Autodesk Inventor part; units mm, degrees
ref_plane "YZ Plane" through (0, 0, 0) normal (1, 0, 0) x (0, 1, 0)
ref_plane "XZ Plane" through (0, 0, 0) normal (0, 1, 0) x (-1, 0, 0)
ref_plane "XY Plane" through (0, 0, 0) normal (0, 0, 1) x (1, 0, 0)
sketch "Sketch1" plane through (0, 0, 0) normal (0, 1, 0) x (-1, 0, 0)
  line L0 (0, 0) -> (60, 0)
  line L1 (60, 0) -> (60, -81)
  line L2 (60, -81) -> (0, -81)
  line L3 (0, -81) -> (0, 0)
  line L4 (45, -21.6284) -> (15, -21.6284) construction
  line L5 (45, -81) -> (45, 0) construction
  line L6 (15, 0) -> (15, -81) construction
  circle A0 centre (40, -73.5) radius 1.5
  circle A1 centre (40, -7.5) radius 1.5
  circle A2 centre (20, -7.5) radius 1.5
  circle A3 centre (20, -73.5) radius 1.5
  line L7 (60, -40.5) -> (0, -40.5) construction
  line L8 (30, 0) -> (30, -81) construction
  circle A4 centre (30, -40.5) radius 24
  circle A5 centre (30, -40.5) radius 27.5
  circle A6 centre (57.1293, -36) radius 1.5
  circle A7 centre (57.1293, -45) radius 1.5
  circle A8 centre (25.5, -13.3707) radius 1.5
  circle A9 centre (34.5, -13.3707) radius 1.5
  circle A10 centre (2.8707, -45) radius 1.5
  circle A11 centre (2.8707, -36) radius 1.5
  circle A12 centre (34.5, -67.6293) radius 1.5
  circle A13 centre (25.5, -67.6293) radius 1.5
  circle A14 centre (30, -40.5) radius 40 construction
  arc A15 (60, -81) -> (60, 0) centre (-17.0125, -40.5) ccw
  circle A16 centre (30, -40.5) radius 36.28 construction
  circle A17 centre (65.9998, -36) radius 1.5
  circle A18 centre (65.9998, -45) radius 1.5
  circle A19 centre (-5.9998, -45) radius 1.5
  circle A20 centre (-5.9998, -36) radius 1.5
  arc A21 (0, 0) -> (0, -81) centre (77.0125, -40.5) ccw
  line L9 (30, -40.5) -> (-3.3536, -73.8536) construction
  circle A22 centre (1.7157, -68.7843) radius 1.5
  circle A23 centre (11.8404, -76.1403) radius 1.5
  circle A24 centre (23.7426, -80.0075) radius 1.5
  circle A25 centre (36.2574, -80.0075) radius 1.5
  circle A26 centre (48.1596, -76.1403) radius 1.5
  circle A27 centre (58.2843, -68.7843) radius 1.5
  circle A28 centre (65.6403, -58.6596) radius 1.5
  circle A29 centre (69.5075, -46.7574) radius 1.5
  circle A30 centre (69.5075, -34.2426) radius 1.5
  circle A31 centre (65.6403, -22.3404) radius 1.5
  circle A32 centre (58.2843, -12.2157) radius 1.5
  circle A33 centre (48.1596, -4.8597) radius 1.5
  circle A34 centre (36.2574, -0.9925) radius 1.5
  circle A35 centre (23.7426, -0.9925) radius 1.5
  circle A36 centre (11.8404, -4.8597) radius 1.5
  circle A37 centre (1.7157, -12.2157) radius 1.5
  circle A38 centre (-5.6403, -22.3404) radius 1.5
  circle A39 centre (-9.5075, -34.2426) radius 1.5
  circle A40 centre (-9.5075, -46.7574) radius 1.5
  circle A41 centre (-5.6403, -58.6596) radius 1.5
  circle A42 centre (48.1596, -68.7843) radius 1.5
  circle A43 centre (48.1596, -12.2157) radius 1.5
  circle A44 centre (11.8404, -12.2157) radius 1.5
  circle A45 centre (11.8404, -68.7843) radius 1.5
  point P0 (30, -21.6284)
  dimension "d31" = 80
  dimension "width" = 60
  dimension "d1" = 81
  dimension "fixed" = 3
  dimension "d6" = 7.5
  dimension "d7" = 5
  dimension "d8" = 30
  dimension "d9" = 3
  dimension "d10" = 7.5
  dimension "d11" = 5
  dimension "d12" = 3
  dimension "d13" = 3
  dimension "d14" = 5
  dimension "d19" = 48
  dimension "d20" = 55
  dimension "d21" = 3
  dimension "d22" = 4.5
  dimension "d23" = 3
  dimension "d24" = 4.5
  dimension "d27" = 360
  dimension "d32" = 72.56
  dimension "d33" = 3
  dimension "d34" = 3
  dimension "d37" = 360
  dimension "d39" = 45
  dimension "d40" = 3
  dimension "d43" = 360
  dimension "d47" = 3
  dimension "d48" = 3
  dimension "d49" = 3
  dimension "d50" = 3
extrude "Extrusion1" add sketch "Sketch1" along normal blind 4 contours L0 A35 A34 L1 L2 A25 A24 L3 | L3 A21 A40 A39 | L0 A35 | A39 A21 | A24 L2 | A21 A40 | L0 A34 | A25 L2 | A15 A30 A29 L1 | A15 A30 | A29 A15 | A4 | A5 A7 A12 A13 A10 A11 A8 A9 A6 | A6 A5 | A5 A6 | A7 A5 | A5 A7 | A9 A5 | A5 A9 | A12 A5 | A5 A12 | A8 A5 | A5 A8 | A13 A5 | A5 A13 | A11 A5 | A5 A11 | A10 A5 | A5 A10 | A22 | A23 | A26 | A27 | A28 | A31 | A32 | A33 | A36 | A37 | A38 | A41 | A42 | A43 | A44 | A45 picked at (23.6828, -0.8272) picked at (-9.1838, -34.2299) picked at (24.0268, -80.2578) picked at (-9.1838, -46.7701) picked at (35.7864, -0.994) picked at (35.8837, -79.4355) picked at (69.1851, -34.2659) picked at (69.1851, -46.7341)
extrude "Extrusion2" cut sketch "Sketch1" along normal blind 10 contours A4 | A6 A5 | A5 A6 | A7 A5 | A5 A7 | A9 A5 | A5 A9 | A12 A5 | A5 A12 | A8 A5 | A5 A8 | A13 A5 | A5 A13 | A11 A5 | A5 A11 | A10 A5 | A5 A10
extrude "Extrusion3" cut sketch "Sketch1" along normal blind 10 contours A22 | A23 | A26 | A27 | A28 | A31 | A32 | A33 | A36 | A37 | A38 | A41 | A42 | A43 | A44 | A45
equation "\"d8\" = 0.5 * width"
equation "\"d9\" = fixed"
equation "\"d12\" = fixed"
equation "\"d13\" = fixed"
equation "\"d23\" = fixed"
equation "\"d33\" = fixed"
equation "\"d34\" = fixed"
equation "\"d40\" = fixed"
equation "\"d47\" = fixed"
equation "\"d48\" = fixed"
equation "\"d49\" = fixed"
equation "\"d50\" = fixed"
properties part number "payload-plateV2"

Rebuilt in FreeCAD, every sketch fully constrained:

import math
import FreeCAD as App
import Part
import Sketcher
from FreeCAD import Vector
Q = App.Units.Quantity

doc = App.newDocument("Part")
body = doc.addObject("PartDesign::Body", "Body")

# Sketch on XZ plane
sketch1 = body.newObject("Sketcher::SketchObject", "Sketch")
sketch1.AttachmentSupport = (doc.getObject("XZ_Plane"), [""])
sketch1.MapMode = "FlatFace"
sketch1.addGeometry(Part.ArcOfCircle(Part.Circle(Vector(-77.0125, -40.5, 0), Vector(0, 0, 1), 87.0125), math.radians(-27.739373), math.radians(27.739373)), False)
sketch1.addGeometry(Part.LineSegment(Vector(0, -81, 0), Vector(-60, -81, 0)), False)
sketch1.addGeometry(Part.ArcOfCircle(Part.Circle(Vector(17.0125, -40.5, 0), Vector(0, 0, 1), 87.0125), math.radians(152.260627), math.radians(207.739373)), False)
sketch1.addGeometry(Part.LineSegment(Vector(-60, 0, 0), Vector(0, 0, 0)), False)
sketch1.addGeometry(Part.Circle(Vector(-20, -73.5, 0), Vector(0, 0, 1), 1.5), False)
sketch1.addGeometry(Part.Circle(Vector(-40, -73.5, 0), Vector(0, 0, 1), 1.5), False)
sketch1.addGeometry(Part.Circle(Vector(-20, -7.5, 0), Vector(0, 0, 1), 1.5), False)
sketch1.addGeometry(Part.Circle(Vector(-40, -7.5, 0), Vector(0, 0, 1), 1.5), False)
sketch1.addGeometry(Part.Circle(Vector(-65.9998, -45, 0), Vector(0, 0, 1), 1.5), False)
sketch1.addGeometry(Part.Circle(Vector(-65.9998, -36, 0), Vector(0, 0, 1), 1.5), False)
sketch1.addGeometry(Part.Circle(Vector(5.9998, -45, 0), Vector(0, 0, 1), 1.5), False)
sketch1.addGeometry(Part.Circle(Vector(5.9998, -36, 0), Vector(0, 0, 1), 1.5), False)
sketch1.addConstraint(Sketcher.Constraint("Coincident", 0, 1, 1, 1))
sketch1.addConstraint(Sketcher.Constraint("Coincident", 1, 2, 2, 2))
sketch1.addConstraint(Sketcher.Constraint("Coincident", 2, 1, 3, 1))
sketch1.addConstraint(Sketcher.Constraint("Coincident", 3, 2, 0, 2))
sketch1.addConstraint(Sketcher.Constraint("Horizontal", 1))
sketch1.addConstraint(Sketcher.Constraint("Horizontal", 3))
sketch1.addConstraint(Sketcher.Constraint("Coincident", 3, 2, -1, 1))
sketch1.addConstraint(Sketcher.Constraint("Equal", 0, 2))
sketch1.addConstraint(Sketcher.Constraint("Equal", 4, 5))
sketch1.addConstraint(Sketcher.Constraint("Equal", 5, 6))
sketch1.addConstraint(Sketcher.Constraint("Equal", 6, 7))
sketch1.addConstraint(Sketcher.Constraint("Equal", 7, 8))
sketch1.addConstraint(Sketcher.Constraint("Equal", 8, 9))
sketch1.addConstraint(Sketcher.Constraint("Equal", 9, 10))
sketch1.addConstraint(Sketcher.Constraint("Equal", 10, 11))
sketch1.addConstraint(Sketcher.Constraint("PointOnObject", 0, 1, -2))
sketch1.addConstraint(Sketcher.Constraint("Horizontal", 0, 3, 2, 3))
sketch1.addConstraint(Sketcher.Constraint("Horizontal", 4, 3, 5, 3))
sketch1.addConstraint(Sketcher.Constraint("Horizontal", 6, 3, 7, 3))
sketch1.addConstraint(Sketcher.Constraint("Horizontal", 8, 3, 10, 3))
sketch1.addConstraint(Sketcher.Constraint("Horizontal", 9, 3, 11, 3))
sketch1.addConstraint(Sketcher.Constraint("Vertical", 4, 3, 6, 3))
sketch1.addConstraint(Sketcher.Constraint("Vertical", 5, 3, 7, 3))
sketch1.addConstraint(Sketcher.Constraint("Vertical", 8, 3, 9, 3))
sketch1.addConstraint(Sketcher.Constraint("Vertical", 10, 3, 11, 3))
sketch1.addConstraint(Sketcher.Constraint("Diameter", 4, Q("3 mm")))
sketch1.addConstraint(Sketcher.Constraint("DistanceX", 1, 2, 1, 1, Q("60 mm")))
sketch1.addConstraint(Sketcher.Constraint("DistanceY", 8, 3, -1, 1, Q("45 mm")))
sketch1.addConstraint(Sketcher.Constraint("DistanceY", 0, 1, -1, 1, Q("81 mm")))
sketch1.addConstraint(Sketcher.Constraint("DistanceY", 0, 1, 11, 3, Q("45 mm")))
sketch1.addConstraint(Sketcher.Constraint("DistanceY", 6, 3, -1, 1, Q("7.5 mm")))
sketch1.addConstraint(Sketcher.Constraint("DistanceY", 0, 1, 4, 3, Q("7.5 mm")))
sketch1.addConstraint(Sketcher.Constraint("DistanceX", 4, 3, -1, 1, Q("20 mm")))
sketch1.addConstraint(Sketcher.Constraint("DistanceX", 5, 3, -1, 1, Q("40 mm")))
sketch1.addConstraint(Sketcher.Constraint("Radius", 0, Q("87.0125 mm")))
sketch1.addConstraint(Sketcher.Constraint("DistanceX", 8, 3, -1, 1, Q("65.9998 mm")))
sketch1.addConstraint(Sketcher.Constraint("DistanceX", -1, 1, 10, 3, Q("5.9998 mm")))
pad1 = body.newObject("PartDesign::Pad", "Pad")
pad1.Profile = sketch1
pad1.Length = 4
pad1.Reversed = True

# Sketch on XZ plane
sketch2 = body.newObject("Sketcher::SketchObject", "Sketch001")
sketch2.AttachmentSupport = (doc.getObject("XZ_Plane"), [""])
sketch2.MapMode = "FlatFace"
sketch2.addGeometry(Part.Circle(Vector(-30, -40.5, 0), Vector(0, 0, 1), 24), False)
sketch2.addGeometry(Part.Circle(Vector(-57.1293, -36, 0), Vector(0, 0, 1), 1.5), False)
sketch2.addGeometry(Part.Circle(Vector(-57.1293, -45, 0), Vector(0, 0, 1), 1.5), False)
sketch2.addGeometry(Part.Circle(Vector(-34.5, -13.3707, 0), Vector(0, 0, 1), 1.5), False)
sketch2.addGeometry(Part.Circle(Vector(-34.5, -67.6293, 0), Vector(0, 0, 1), 1.5), False)
sketch2.addGeometry(Part.Circle(Vector(-25.5, -13.3707, 0), Vector(0, 0, 1), 1.5), False)
sketch2.addGeometry(Part.Circle(Vector(-25.5, -67.6293, 0), Vector(0, 0, 1), 1.5), False)
sketch2.addGeometry(Part.Circle(Vector(-2.8707, -36, 0), Vector(0, 0, 1), 1.5), False)
sketch2.addGeometry(Part.Circle(Vector(-2.8707, -45, 0), Vector(0, 0, 1), 1.5), False)
sketch2.addConstraint(Sketcher.Constraint("Equal", 1, 2))
sketch2.addConstraint(Sketcher.Constraint("Equal", 2, 3))
sketch2.addConstraint(Sketcher.Constraint("Equal", 3, 4))
sketch2.addConstraint(Sketcher.Constraint("Equal", 4, 5))
sketch2.addConstraint(Sketcher.Constraint("Equal", 5, 6))
sketch2.addConstraint(Sketcher.Constraint("Equal", 6, 7))
sketch2.addConstraint(Sketcher.Constraint("Equal", 7, 8))
sketch2.addConstraint(Sketcher.Constraint("Horizontal", 3, 3, 5, 3))
sketch2.addConstraint(Sketcher.Constraint("Horizontal", 4, 3, 6, 3))
sketch2.addConstraint(Sketcher.Constraint("Horizontal", 1, 3, 7, 3))
sketch2.addConstraint(Sketcher.Constraint("Horizontal", 2, 3, 8, 3))
sketch2.addConstraint(Sketcher.Constraint("Vertical", 1, 3, 2, 3))
sketch2.addConstraint(Sketcher.Constraint("Vertical", 3, 3, 4, 3))
sketch2.addConstraint(Sketcher.Constraint("Vertical", 5, 3, 6, 3))
sketch2.addConstraint(Sketcher.Constraint("Vertical", 7, 3, 8, 3))
sketch2.addConstraint(Sketcher.Constraint("Diameter", 0, Q("48 mm")))
sketch2.addConstraint(Sketcher.Constraint("Diameter", 1, Q("3 mm")))
sketch2.addConstraint(Sketcher.Constraint("DistanceX", 0, 3, -1, 1, Q("30 mm")))
sketch2.addConstraint(Sketcher.Constraint("DistanceY", 2, 3, -1, 1, Q("45 mm")))
sketch2.addConstraint(Sketcher.Constraint("DistanceY", 0, 3, 1, 3, Q("4.5 mm")))
sketch2.addConstraint(Sketcher.Constraint("DistanceY", 2, 3, 0, 3, Q("4.5 mm")))
sketch2.addConstraint(Sketcher.Constraint("DistanceX", 3, 3, 0, 3, Q("4.5 mm")))
sketch2.addConstraint(Sketcher.Constraint("DistanceX", 0, 3, 5, 3, Q("4.5 mm")))
sketch2.addConstraint(Sketcher.Constraint("DistanceX", 1, 3, -1, 1, Q("57.1293 mm")))
sketch2.addConstraint(Sketcher.Constraint("DistanceY", 3, 3, -1, 1, Q("13.3707 mm")))
sketch2.addConstraint(Sketcher.Constraint("DistanceY", 4, 3, -1, 1, Q("67.6293 mm")))
sketch2.addConstraint(Sketcher.Constraint("DistanceX", 7, 3, -1, 1, Q("2.8707 mm")))
pocket1 = body.newObject("PartDesign::Pocket", "Pocket")
pocket1.Profile = sketch2
pocket1.Length = 10

# Sketch on XZ plane
sketch3 = body.newObject("Sketcher::SketchObject", "Sketch002")
sketch3.AttachmentSupport = (doc.getObject("XZ_Plane"), [""])
sketch3.MapMode = "FlatFace"
sketch3.addGeometry(Part.Circle(Vector(-1.7157, -68.7843, 0), Vector(0, 0, 1), 1.5), False)
sketch3.addGeometry(Part.Circle(Vector(-11.8404, -76.1403, 0), Vector(0, 0, 1), 1.5), False)
sketch3.addGeometry(Part.Circle(Vector(-48.1596, -76.1403, 0), Vector(0, 0, 1), 1.5), False)
sketch3.addGeometry(Part.Circle(Vector(-58.2843, -68.7843, 0), Vector(0, 0, 1), 1.5), False)
sketch3.addGeometry(Part.Circle(Vector(-65.6403, -58.6596, 0), Vector(0, 0, 1), 1.5), False)
sketch3.addGeometry(Part.Circle(Vector(-65.6403, -22.3404, 0), Vector(0, 0, 1), 1.5), False)
sketch3.addGeometry(Part.Circle(Vector(-58.2843, -12.2157, 0), Vector(0, 0, 1), 1.5), False)
sketch3.addGeometry(Part.Circle(Vector(-48.1596, -4.8597, 0), Vector(0, 0, 1), 1.5), False)
sketch3.addGeometry(Part.Circle(Vector(-11.8404, -4.8597, 0), Vector(0, 0, 1), 1.5), False)
sketch3.addGeometry(Part.Circle(Vector(-1.7157, -12.2157, 0), Vector(0, 0, 1), 1.5), False)
sketch3.addGeometry(Part.Circle(Vector(5.6403, -22.3404, 0), Vector(0, 0, 1), 1.5), False)
sketch3.addGeometry(Part.Circle(Vector(5.6403, -58.6596, 0), Vector(0, 0, 1), 1.5), False)
sketch3.addGeometry(Part.Circle(Vector(-48.1596, -68.7843, 0), Vector(0, 0, 1), 1.5), False)
sketch3.addGeometry(Part.Circle(Vector(-48.1596, -12.2157, 0), Vector(0, 0, 1), 1.5), False)
sketch3.addGeometry(Part.Circle(Vector(-11.8404, -12.2157, 0), Vector(0, 0, 1), 1.5), False)
sketch3.addGeometry(Part.Circle(Vector(-11.8404, -68.7843, 0), Vector(0, 0, 1), 1.5), False)
sketch3.addConstraint(Sketcher.Constraint("Equal", 0, 1))
sketch3.addConstraint(Sketcher.Constraint("Equal", 1, 2))
sketch3.addConstraint(Sketcher.Constraint("Equal", 2, 3))
sketch3.addConstraint(Sketcher.Constraint("Equal", 3, 4))
sketch3.addConstraint(Sketcher.Constraint("Equal", 4, 5))
sketch3.addConstraint(Sketcher.Constraint("Equal", 5, 6))
sketch3.addConstraint(Sketcher.Constraint("Equal", 6, 7))
sketch3.addConstraint(Sketcher.Constraint("Equal", 7, 8))
sketch3.addConstraint(Sketcher.Constraint("Equal", 8, 9))
sketch3.addConstraint(Sketcher.Constraint("Equal", 9, 10))
sketch3.addConstraint(Sketcher.Constraint("Equal", 10, 11))
sketch3.addConstraint(Sketcher.Constraint("Equal", 11, 12))
sketch3.addConstraint(Sketcher.Constraint("Equal", 12, 13))
sketch3.addConstraint(Sketcher.Constraint("Equal", 13, 14))
sketch3.addConstraint(Sketcher.Constraint("Equal", 14, 15))
sketch3.addConstraint(Sketcher.Constraint("Horizontal", 1, 3, 2, 3))
sketch3.addConstraint(Sketcher.Constraint("Horizontal", 0, 3, 3, 3))
sketch3.addConstraint(Sketcher.Constraint("Horizontal", 7, 3, 8, 3))
sketch3.addConstraint(Sketcher.Constraint("Horizontal", 6, 3, 9, 3))
sketch3.addConstraint(Sketcher.Constraint("Horizontal", 5, 3, 10, 3))
sketch3.addConstraint(Sketcher.Constraint("Horizontal", 4, 3, 11, 3))
sketch3.addConstraint(Sketcher.Constraint("Horizontal", 3, 3, 12, 3))
sketch3.addConstraint(Sketcher.Constraint("Horizontal", 9, 3, 13, 3))
sketch3.addConstraint(Sketcher.Constraint("Horizontal", 13, 3, 14, 3))
sketch3.addConstraint(Sketcher.Constraint("Horizontal", 12, 3, 15, 3))
sketch3.addConstraint(Sketcher.Constraint("Vertical", 4, 3, 5, 3))
sketch3.addConstraint(Sketcher.Constraint("Vertical", 3, 3, 6, 3))
sketch3.addConstraint(Sketcher.Constraint("Vertical", 2, 3, 7, 3))
sketch3.addConstraint(Sketcher.Constraint("Vertical", 1, 3, 8, 3))
sketch3.addConstraint(Sketcher.Constraint("Vertical", 0, 3, 9, 3))
sketch3.addConstraint(Sketcher.Constraint("Vertical", 10, 3, 11, 3))
sketch3.addConstraint(Sketcher.Constraint("Vertical", 7, 3, 12, 3))
sketch3.addConstraint(Sketcher.Constraint("Vertical", 12, 3, 13, 3))
sketch3.addConstraint(Sketcher.Constraint("Vertical", 8, 3, 14, 3))
sketch3.addConstraint(Sketcher.Constraint("Vertical", 14, 3, 15, 3))
sketch3.addConstraint(Sketcher.Constraint("Diameter", 0, Q("3 mm")))
sketch3.addConstraint(Sketcher.Constraint("DistanceX", 4, 3, 1, 3, Q("53.8 mm")))
sketch3.addConstraint(Sketcher.Constraint("DistanceY", 2, 3, 5, 3, Q("53.8 mm")))
sketch3.addConstraint(Sketcher.Constraint("DistanceY", 4, 3, 7, 3, Q("53.8 mm")))
sketch3.addConstraint(Sketcher.Constraint("DistanceX", 7, 3, 10, 3, Q("53.8 mm")))
sketch3.addConstraint(Sketcher.Constraint("DistanceY", 1, 3, 0, 3, Q("7.356 mm")))
sketch3.addConstraint(Sketcher.Constraint("DistanceX", 2, 3, 0, 3, Q("46.444 mm")))
sketch3.addConstraint(Sketcher.Constraint("DistanceX", 3, 3, 1, 3, Q("46.444 mm")))
sketch3.addConstraint(Sketcher.Constraint("DistanceY", 4, 3, 6, 3, Q("46.444 mm")))
sketch3.addConstraint(Sketcher.Constraint("DistanceX", 0, 3, -1, 1, Q("1.7157 mm")))
sketch3.addConstraint(Sketcher.Constraint("DistanceY", 0, 3, -1, 1, Q("68.7843 mm")))
sketch3.addConstraint(Sketcher.Constraint("DistanceX", 1, 3, -1, 1, Q("11.8404 mm")))
sketch3.addConstraint(Sketcher.Constraint("DistanceY", 4, 3, -1, 1, Q("58.6596 mm")))
pocket2 = body.newObject("PartDesign::Pocket", "Pocket001")
pocket2.Profile = sketch3
pocket2.Length = 10

doc.recompute()
